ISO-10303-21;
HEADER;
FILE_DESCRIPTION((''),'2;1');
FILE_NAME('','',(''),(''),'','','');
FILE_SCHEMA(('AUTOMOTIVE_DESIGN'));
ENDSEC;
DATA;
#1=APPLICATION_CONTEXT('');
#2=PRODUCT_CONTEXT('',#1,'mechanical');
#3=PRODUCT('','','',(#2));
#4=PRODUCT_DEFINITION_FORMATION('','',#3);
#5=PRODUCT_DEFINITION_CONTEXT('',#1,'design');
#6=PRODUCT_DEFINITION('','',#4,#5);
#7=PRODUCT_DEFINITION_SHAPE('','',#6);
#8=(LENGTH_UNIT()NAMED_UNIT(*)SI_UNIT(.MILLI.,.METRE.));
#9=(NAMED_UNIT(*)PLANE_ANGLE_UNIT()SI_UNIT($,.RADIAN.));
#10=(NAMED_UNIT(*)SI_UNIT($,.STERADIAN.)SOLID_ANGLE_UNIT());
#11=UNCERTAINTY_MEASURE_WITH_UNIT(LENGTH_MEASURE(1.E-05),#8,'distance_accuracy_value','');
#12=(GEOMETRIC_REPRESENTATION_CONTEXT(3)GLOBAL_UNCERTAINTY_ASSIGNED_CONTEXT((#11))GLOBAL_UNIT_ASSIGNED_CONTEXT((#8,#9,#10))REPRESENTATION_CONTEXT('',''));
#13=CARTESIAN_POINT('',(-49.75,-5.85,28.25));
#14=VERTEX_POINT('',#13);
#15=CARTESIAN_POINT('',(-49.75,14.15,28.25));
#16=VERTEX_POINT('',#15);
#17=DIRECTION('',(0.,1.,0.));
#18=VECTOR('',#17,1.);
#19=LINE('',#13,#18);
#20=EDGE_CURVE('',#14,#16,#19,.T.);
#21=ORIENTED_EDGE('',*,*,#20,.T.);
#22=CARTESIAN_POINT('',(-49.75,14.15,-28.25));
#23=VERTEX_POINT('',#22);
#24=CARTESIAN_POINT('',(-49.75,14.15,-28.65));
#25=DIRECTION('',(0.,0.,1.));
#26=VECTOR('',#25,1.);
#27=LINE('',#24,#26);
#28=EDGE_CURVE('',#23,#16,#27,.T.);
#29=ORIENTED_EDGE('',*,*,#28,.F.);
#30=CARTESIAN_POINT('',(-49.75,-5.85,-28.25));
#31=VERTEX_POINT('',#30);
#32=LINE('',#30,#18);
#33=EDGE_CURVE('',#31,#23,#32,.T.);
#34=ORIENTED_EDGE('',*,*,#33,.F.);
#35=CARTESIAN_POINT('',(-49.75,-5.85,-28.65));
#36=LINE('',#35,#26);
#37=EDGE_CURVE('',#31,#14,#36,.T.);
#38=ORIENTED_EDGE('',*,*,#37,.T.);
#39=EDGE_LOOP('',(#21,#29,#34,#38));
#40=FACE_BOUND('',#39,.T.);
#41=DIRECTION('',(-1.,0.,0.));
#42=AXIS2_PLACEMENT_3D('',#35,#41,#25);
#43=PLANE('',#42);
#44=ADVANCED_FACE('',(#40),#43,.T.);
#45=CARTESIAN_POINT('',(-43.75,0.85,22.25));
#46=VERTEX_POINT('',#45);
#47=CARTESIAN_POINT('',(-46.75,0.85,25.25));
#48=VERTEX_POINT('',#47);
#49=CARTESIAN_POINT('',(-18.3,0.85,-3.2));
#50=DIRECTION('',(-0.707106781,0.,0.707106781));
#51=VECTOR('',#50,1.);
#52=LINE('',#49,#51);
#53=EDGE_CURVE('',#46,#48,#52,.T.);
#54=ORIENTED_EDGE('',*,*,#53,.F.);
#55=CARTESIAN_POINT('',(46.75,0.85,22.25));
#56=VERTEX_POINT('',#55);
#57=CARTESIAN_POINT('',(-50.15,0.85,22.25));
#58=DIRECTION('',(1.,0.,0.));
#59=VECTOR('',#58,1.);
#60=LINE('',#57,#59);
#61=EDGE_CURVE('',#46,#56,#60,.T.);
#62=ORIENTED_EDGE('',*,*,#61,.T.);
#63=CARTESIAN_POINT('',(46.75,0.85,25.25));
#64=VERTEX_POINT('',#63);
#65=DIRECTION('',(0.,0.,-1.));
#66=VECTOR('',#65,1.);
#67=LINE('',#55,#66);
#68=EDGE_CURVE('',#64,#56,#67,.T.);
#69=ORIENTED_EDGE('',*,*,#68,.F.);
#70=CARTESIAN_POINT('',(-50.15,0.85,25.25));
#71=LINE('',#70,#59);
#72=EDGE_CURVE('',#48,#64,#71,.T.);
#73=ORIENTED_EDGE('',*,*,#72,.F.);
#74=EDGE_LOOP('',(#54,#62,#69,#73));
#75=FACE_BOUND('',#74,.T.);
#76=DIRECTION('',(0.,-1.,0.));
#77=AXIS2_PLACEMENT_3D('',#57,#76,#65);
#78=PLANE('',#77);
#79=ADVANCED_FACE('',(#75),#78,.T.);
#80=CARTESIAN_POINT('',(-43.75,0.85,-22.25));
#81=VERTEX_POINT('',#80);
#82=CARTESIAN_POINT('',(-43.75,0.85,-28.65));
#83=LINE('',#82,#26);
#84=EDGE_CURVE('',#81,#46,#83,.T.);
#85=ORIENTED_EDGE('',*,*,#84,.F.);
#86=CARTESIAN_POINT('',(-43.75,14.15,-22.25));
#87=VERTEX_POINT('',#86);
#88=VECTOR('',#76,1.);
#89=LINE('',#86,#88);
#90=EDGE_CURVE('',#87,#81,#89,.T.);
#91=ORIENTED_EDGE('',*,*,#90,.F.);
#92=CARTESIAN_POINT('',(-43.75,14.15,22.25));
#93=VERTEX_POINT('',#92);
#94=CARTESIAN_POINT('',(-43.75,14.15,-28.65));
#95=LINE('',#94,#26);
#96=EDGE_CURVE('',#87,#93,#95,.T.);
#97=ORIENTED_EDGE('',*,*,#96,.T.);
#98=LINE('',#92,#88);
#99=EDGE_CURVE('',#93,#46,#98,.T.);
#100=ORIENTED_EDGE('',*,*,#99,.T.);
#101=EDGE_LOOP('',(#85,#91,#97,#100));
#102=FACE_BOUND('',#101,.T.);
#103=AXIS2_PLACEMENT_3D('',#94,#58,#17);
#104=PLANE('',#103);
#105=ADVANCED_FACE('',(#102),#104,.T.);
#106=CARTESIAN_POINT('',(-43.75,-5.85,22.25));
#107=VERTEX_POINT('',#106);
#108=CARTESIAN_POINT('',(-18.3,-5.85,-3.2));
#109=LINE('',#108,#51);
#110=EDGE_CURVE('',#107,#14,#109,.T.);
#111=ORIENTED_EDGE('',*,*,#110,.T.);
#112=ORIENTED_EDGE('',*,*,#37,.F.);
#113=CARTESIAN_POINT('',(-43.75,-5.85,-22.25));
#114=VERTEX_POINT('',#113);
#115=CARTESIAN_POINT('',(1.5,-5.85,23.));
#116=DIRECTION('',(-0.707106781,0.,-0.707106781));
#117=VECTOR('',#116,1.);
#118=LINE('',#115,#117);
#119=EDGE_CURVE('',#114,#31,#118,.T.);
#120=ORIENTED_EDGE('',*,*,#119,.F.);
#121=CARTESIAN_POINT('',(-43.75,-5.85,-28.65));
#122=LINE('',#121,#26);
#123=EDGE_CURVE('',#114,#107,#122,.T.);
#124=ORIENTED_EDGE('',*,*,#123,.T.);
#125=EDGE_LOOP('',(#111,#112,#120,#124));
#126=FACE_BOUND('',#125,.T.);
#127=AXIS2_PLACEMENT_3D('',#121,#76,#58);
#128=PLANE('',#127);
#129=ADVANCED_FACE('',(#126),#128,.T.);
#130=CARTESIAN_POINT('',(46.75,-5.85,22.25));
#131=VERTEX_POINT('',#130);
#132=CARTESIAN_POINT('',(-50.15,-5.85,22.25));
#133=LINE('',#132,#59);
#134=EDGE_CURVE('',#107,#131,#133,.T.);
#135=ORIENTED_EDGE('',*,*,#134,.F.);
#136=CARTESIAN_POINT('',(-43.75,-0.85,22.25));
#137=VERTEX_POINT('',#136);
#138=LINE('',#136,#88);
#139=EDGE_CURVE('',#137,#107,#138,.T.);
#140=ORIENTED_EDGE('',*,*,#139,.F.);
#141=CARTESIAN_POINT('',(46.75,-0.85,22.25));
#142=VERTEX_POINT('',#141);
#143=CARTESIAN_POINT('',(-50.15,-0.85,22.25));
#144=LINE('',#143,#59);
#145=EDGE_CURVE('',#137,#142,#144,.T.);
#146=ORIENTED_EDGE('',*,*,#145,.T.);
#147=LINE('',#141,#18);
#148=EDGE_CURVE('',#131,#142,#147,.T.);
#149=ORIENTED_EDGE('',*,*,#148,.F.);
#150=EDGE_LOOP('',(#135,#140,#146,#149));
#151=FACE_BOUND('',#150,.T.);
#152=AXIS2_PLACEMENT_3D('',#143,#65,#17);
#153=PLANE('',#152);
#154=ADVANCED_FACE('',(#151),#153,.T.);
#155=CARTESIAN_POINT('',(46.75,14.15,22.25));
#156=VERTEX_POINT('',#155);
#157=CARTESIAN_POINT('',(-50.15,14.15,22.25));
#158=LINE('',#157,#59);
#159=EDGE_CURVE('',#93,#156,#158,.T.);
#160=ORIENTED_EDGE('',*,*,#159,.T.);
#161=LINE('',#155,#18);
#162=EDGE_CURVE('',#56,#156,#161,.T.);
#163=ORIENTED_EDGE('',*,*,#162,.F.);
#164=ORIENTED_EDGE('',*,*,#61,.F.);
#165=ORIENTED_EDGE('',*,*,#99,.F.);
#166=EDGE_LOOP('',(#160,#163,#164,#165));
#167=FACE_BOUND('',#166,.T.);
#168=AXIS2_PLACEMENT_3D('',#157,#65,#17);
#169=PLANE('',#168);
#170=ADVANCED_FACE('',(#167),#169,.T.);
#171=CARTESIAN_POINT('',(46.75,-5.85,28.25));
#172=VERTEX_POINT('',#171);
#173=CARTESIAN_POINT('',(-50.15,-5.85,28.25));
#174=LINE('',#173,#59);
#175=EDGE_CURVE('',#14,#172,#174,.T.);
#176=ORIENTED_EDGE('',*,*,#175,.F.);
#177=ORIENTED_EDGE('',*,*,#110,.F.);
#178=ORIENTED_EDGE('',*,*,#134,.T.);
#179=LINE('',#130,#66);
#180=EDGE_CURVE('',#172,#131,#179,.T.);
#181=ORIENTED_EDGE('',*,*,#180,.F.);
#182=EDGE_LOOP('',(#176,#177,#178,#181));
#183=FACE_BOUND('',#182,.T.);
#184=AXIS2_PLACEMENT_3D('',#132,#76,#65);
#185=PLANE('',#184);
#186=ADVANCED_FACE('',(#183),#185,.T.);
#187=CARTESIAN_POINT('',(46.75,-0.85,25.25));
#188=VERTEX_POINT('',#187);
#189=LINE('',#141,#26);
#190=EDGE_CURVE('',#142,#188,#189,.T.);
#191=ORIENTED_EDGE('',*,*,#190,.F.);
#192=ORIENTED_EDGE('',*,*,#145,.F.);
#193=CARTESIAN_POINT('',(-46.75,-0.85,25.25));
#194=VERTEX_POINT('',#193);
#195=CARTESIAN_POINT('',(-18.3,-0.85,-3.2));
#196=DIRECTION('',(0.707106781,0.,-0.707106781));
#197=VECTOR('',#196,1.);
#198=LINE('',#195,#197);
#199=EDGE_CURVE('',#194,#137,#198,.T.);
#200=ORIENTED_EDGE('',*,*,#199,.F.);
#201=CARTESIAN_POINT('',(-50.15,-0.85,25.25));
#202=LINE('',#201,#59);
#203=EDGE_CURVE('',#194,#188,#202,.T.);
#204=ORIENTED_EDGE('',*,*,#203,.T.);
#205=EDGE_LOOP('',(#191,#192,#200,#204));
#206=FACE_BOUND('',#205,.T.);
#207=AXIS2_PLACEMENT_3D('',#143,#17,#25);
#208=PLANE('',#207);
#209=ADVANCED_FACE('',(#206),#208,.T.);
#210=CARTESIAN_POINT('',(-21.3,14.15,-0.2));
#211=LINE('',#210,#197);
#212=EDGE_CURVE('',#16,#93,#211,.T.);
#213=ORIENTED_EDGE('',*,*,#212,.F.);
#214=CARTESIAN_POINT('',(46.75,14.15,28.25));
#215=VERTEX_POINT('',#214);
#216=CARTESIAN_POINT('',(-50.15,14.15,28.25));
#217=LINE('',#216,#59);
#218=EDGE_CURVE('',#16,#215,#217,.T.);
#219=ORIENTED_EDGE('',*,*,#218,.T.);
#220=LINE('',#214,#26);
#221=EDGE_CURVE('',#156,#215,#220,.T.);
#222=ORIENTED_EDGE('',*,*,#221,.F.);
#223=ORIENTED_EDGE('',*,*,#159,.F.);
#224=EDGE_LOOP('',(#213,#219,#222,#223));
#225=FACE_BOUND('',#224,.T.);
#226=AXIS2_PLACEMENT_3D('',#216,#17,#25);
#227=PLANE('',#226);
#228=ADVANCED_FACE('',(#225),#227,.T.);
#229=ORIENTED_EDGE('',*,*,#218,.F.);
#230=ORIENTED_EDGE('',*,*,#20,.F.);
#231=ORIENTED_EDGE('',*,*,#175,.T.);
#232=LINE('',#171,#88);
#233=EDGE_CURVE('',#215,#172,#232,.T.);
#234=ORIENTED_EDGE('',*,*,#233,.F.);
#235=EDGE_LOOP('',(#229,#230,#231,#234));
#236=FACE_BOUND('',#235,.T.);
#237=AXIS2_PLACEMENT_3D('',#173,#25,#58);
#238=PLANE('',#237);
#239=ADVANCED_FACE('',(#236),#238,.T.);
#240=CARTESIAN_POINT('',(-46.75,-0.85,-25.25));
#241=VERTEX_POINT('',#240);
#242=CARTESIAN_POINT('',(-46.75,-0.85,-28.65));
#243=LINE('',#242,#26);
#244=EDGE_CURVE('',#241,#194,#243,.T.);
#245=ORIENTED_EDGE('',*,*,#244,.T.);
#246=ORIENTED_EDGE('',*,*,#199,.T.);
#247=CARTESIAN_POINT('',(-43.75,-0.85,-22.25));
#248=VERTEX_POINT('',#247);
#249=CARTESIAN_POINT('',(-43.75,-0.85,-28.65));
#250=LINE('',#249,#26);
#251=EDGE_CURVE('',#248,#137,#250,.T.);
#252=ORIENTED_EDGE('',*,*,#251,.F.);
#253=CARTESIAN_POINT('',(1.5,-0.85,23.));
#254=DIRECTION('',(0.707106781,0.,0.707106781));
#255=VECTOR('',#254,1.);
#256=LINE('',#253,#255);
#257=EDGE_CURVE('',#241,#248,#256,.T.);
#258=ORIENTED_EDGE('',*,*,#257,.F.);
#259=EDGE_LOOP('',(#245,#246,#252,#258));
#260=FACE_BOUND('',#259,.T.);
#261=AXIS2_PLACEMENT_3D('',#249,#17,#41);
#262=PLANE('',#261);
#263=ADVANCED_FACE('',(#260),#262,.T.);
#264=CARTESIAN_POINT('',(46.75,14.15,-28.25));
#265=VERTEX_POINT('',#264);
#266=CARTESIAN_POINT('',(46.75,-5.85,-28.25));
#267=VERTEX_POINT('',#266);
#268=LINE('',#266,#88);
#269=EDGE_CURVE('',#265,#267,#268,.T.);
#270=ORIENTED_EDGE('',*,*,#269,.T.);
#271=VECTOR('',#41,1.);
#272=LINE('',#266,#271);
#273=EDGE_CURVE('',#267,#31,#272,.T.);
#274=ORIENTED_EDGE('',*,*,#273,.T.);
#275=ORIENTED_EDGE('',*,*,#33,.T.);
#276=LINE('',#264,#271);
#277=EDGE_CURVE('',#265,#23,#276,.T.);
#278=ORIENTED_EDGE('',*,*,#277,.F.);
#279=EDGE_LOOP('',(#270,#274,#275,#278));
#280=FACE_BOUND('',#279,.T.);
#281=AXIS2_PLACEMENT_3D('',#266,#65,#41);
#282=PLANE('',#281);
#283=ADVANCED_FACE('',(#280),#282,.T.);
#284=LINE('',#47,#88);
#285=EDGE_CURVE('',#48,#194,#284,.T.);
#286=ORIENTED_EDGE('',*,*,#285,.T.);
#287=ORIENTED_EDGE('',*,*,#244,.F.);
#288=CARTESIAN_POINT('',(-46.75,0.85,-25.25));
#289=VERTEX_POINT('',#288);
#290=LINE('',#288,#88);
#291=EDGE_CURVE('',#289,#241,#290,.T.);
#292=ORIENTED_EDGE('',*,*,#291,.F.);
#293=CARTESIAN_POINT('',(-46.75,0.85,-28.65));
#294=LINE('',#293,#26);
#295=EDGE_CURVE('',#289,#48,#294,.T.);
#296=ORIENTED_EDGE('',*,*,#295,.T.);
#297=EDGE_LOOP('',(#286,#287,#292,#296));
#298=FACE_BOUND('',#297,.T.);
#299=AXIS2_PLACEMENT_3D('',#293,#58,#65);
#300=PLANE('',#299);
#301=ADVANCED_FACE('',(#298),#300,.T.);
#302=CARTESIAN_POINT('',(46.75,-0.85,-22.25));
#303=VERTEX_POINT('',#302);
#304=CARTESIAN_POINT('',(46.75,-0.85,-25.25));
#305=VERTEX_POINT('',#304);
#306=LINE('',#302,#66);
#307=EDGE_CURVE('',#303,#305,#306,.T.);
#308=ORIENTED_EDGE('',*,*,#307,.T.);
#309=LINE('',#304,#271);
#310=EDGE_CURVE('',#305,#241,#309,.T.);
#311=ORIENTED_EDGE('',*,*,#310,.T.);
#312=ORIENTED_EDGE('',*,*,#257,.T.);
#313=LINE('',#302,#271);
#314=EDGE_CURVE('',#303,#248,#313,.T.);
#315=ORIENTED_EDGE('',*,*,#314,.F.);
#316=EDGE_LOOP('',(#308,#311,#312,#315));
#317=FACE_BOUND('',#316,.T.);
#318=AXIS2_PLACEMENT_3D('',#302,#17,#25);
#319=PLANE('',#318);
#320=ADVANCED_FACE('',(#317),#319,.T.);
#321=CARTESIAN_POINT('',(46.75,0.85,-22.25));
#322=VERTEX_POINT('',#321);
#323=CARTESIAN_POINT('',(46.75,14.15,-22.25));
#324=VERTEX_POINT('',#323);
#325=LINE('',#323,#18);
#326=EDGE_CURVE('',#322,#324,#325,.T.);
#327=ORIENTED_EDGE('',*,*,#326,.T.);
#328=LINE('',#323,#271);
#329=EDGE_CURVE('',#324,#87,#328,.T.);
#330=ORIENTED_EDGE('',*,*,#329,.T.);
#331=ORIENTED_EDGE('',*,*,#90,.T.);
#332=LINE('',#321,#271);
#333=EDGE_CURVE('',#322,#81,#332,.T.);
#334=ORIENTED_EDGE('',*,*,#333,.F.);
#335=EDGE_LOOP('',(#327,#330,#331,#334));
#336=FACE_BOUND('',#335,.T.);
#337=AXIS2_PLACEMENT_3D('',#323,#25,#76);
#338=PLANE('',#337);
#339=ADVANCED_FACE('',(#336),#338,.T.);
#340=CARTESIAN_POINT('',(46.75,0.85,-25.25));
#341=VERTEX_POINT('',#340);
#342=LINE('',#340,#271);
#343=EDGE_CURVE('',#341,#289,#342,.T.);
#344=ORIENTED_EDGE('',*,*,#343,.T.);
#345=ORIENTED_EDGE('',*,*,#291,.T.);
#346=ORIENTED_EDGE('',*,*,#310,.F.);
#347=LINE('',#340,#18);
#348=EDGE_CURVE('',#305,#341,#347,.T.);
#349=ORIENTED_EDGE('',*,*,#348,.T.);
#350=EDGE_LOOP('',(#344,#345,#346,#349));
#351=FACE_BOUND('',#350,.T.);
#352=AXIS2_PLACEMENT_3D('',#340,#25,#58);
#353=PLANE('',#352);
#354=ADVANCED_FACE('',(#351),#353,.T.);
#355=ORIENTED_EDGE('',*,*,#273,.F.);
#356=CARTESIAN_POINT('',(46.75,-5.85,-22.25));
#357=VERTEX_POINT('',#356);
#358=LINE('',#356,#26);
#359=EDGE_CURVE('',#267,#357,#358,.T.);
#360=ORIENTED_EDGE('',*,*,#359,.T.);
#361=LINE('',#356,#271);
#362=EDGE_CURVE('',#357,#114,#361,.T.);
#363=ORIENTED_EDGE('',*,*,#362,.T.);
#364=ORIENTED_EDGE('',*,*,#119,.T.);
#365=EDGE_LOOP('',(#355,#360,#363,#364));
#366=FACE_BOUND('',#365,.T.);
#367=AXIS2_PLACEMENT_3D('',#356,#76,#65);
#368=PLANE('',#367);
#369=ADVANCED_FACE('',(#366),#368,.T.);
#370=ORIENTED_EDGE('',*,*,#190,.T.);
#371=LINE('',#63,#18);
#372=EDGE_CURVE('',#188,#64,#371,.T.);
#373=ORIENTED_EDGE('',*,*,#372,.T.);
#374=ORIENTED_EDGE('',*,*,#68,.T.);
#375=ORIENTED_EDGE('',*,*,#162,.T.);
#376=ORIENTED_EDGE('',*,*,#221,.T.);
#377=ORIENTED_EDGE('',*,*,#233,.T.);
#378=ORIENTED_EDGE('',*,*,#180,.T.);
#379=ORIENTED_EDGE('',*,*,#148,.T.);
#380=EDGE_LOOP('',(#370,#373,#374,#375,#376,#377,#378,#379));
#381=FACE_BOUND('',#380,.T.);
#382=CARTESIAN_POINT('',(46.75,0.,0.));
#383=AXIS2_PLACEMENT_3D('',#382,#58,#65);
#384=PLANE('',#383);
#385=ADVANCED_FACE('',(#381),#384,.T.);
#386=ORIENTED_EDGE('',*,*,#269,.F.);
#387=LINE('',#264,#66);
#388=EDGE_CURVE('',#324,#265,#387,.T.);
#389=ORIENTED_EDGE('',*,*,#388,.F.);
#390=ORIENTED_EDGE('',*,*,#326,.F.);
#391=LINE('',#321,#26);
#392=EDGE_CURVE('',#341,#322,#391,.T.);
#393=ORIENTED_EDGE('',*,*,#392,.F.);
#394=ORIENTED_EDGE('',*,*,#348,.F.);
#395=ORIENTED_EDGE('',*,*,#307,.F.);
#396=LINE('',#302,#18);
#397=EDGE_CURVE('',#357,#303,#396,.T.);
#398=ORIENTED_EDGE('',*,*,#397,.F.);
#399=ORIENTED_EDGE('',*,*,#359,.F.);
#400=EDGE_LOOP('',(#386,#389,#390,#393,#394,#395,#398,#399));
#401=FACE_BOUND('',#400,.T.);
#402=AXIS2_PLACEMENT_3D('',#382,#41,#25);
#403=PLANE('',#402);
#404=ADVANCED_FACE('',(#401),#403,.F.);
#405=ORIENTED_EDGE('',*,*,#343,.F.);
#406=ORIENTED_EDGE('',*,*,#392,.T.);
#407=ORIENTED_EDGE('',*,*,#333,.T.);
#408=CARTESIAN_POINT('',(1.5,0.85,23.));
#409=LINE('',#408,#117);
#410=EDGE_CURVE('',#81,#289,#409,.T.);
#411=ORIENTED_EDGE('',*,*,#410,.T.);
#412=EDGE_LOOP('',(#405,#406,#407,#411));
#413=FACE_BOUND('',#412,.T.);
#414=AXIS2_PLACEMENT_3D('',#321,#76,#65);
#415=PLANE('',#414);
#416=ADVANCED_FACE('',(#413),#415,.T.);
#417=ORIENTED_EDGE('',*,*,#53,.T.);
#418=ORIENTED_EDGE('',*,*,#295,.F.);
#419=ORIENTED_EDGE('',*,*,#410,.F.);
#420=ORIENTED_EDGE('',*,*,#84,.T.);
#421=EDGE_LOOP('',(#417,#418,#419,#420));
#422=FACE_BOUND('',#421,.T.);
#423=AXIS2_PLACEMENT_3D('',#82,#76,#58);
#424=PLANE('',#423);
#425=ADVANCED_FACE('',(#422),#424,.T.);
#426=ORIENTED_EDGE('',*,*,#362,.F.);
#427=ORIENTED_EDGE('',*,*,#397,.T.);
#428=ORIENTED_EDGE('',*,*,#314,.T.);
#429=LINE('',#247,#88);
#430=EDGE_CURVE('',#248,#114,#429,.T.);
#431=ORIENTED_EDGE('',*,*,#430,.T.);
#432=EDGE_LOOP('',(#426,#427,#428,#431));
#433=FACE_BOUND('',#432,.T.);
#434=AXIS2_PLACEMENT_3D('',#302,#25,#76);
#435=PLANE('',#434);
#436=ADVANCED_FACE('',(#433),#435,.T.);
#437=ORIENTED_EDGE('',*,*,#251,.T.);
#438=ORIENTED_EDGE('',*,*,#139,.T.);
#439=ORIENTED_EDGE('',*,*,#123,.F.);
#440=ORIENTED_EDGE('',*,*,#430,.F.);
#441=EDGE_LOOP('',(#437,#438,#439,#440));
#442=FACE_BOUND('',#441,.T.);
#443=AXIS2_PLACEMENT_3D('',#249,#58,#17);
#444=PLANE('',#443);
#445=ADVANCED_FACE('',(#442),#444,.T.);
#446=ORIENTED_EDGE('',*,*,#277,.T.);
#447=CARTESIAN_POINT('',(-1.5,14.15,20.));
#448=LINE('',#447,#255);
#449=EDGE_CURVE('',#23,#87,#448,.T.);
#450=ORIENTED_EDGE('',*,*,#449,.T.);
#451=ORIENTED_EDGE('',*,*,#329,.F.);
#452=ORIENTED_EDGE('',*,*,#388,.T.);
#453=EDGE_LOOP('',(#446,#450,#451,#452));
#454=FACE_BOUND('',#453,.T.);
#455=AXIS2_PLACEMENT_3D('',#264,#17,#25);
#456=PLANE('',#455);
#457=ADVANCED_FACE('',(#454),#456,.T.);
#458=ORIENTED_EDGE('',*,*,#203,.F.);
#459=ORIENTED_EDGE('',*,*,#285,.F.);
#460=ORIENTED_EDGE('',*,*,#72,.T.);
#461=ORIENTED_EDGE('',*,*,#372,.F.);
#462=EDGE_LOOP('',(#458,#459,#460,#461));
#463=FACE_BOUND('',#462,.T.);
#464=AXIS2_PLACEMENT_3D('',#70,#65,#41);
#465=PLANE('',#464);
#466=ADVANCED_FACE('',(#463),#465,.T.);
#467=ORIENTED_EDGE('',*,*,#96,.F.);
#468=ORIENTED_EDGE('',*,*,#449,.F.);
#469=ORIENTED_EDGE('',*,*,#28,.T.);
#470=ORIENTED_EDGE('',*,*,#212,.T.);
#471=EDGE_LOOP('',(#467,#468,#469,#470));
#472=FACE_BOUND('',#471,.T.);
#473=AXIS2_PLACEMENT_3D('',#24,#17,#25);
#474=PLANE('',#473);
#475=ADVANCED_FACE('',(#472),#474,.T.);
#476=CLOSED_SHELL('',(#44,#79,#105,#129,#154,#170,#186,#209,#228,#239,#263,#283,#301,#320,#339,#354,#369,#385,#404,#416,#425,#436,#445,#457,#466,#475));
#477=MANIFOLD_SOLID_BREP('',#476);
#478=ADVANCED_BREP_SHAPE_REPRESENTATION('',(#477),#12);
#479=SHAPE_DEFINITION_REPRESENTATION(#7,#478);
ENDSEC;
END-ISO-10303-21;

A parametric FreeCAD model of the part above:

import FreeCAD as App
import Part
import Sketcher
Q = App.Units.Quantity

doc = App.newDocument("Part")
params = doc.addObject("Spreadsheet::Sheet", "Params")
for row, (alias, value) in enumerate([
    ("sketch1_width", "20 mm"),
    ("sketch1_width2", "5 mm"),
    ("sketch1_height", "3 mm"),
    ("sketch1_height2", "6 mm"),
    ("sketch1_width3", "1.7 mm"),
    ("sketch2_width", "93.5 mm"),
    ("sketch2_height", "50.5 mm"),
], start=1):
    params.set(f"A{row}", alias)
    params.set(f"B{row}", "=" + value)
    params.setAlias(f"B{row}", alias)

body = doc.addObject("PartDesign::Body", "Body")

sketch1 = body.newObject("Sketcher::SketchObject", "Sketch")
sketch1.AttachmentSupport = (doc.getObject("YZ_Plane"), [""])
sketch1.MapMode = "FlatFace"
sketch1.AttachmentOffset = App.Placement(App.Vector(0, 0, 46.75), App.Rotation())
sketch1.addGeometry(Part.LineSegment(App.Vector(-0.8, 25.2, 0), App.Vector(0.8, 25.2, 0)), False)
sketch1.addGeometry(Part.LineSegment(App.Vector(0.8, 25.2, 0), App.Vector(0.8, 22.2, 0)), False)
sketch1.addGeometry(Part.LineSegment(App.Vector(0.8, 22.2, 0), App.Vector(14.2, 22.2, 0)), False)
sketch1.addGeometry(Part.LineSegment(App.Vector(14.2, 22.2, 0), App.Vector(14.2, 28.2, 0)), False)
sketch1.addGeometry(Part.LineSegment(App.Vector(14.2, 28.2, 0), App.Vector(-5.8, 28.2, 0)), False)
sketch1.addGeometry(Part.LineSegment(App.Vector(-5.8, 28.2, 0), App.Vector(-5.8, 22.2, 0)), False)
sketch1.addGeometry(Part.LineSegment(App.Vector(-5.8, 22.2, 0), App.Vector(-0.8, 22.2, 0)), False)
sketch1.addGeometry(Part.LineSegment(App.Vector(-0.8, 22.2, 0), App.Vector(-0.8, 25.2, 0)), False)
sketch1.addConstraint(Sketcher.Constraint("Coincident", 0, 2, 1, 1))
sketch1.addConstraint(Sketcher.Constraint("Coincident", 1, 2, 2, 1))
sketch1.addConstraint(Sketcher.Constraint("Coincident", 2, 2, 3, 1))
sketch1.addConstraint(Sketcher.Constraint("Coincident", 3, 2, 4, 1))
sketch1.addConstraint(Sketcher.Constraint("Coincident", 4, 2, 5, 1))
sketch1.addConstraint(Sketcher.Constraint("Coincident", 5, 2, 6, 1))
sketch1.addConstraint(Sketcher.Constraint("Coincident", 6, 2, 7, 1))
sketch1.addConstraint(Sketcher.Constraint("Coincident", 7, 2, 0, 1))
sketch1.addConstraint(Sketcher.Constraint("Horizontal", 0))
sketch1.addConstraint(Sketcher.Constraint("Vertical", 1))
sketch1.addConstraint(Sketcher.Constraint("Horizontal", 2))
sketch1.addConstraint(Sketcher.Constraint("Vertical", 3))
sketch1.addConstraint(Sketcher.Constraint("Horizontal", 4))
sketch1.addConstraint(Sketcher.Constraint("Vertical", 5))
sketch1.addConstraint(Sketcher.Constraint("Horizontal", 6))
sketch1.addConstraint(Sketcher.Constraint("Vertical", 7))
sketch1.addConstraint(Sketcher.Constraint("Symmetric", 1, 2, 6, 2, -2))
sketch1.addConstraint(Sketcher.Constraint("DistanceX", 4, 2, 4, 1, Q("20 mm")))
sketch1.addConstraint(Sketcher.Constraint("DistanceX", 6, 1, 6, 2, Q("5 mm")))
sketch1.addConstraint(Sketcher.Constraint("DistanceY", 1, 2, 1, 1, Q("3 mm")))
sketch1.addConstraint(Sketcher.Constraint("DistanceY", 3, 1, 3, 2, Q("6 mm")))
sketch1.addConstraint(Sketcher.Constraint("DistanceX", 0, 1, 0, 2, Q("1.7 mm")))
sketch1.addConstraint(Sketcher.Constraint("DistanceY", -1, 1, 0, 2, Q("25.25 mm")))
sketch1.setExpression("Constraints[17]", "Params.sketch1_width")
sketch1.setExpression("Constraints[18]", "Params.sketch1_width2")
sketch1.setExpression("Constraints[19]", "Params.sketch1_height")
sketch1.setExpression("Constraints[20]", "Params.sketch1_height2")
sketch1.setExpression("Constraints[21]", "Params.sketch1_width3")

sketch2 = body.newObject("Sketcher::SketchObject", "Sketch001")
sketch2.AttachmentSupport = (doc.getObject("XZ_Plane"), [""])
sketch2.MapMode = "FlatFace"
sketch2.addGeometry(Part.LineSegment(App.Vector(47, 25, 0), App.Vector(-47, 25, 0)), False)
sketch2.addGeometry(Part.LineSegment(App.Vector(-47, 25, 0), App.Vector(-47, -25, 0)), False)
sketch2.addGeometry(Part.LineSegment(App.Vector(-47, -25, 0), App.Vector(47, -25, 0)), False)
sketch2.addConstraint(Sketcher.Constraint("Coincident", 0, 2, 1, 1))
sketch2.addConstraint(Sketcher.Constraint("Coincident", 1, 2, 2, 1))
sketch2.addConstraint(Sketcher.Constraint("Horizontal", 0))
sketch2.addConstraint(Sketcher.Constraint("Vertical", 1))
sketch2.addConstraint(Sketcher.Constraint("Horizontal", 2))
sketch2.addConstraint(Sketcher.Constraint("Symmetric", 0, 1, 1, 2, -1, 1))
sketch2.addConstraint(Sketcher.Constraint("Vertical", 0, 1, 2, 2))
sketch2.addConstraint(Sketcher.Constraint("DistanceX", 0, 2, 0, 1, Q("93.5 mm")))
sketch2.addConstraint(Sketcher.Constraint("DistanceY", 1, 2, 1, 1, Q("50.5 mm")))
sketch2.setExpression("Constraints[7]", "Params.sketch2_width")
sketch2.setExpression("Constraints[8]", "Params.sketch2_height")
doc.recompute()

additivepipe = body.newObject("PartDesign::AdditivePipe", "AdditivePipe")
additivepipe.Profile = sketch1
additivepipe.Spine = (sketch2, ["Edge1", "Edge2", "Edge3"])
additivepipe.Transition = "Right corner"

doc.recompute()
